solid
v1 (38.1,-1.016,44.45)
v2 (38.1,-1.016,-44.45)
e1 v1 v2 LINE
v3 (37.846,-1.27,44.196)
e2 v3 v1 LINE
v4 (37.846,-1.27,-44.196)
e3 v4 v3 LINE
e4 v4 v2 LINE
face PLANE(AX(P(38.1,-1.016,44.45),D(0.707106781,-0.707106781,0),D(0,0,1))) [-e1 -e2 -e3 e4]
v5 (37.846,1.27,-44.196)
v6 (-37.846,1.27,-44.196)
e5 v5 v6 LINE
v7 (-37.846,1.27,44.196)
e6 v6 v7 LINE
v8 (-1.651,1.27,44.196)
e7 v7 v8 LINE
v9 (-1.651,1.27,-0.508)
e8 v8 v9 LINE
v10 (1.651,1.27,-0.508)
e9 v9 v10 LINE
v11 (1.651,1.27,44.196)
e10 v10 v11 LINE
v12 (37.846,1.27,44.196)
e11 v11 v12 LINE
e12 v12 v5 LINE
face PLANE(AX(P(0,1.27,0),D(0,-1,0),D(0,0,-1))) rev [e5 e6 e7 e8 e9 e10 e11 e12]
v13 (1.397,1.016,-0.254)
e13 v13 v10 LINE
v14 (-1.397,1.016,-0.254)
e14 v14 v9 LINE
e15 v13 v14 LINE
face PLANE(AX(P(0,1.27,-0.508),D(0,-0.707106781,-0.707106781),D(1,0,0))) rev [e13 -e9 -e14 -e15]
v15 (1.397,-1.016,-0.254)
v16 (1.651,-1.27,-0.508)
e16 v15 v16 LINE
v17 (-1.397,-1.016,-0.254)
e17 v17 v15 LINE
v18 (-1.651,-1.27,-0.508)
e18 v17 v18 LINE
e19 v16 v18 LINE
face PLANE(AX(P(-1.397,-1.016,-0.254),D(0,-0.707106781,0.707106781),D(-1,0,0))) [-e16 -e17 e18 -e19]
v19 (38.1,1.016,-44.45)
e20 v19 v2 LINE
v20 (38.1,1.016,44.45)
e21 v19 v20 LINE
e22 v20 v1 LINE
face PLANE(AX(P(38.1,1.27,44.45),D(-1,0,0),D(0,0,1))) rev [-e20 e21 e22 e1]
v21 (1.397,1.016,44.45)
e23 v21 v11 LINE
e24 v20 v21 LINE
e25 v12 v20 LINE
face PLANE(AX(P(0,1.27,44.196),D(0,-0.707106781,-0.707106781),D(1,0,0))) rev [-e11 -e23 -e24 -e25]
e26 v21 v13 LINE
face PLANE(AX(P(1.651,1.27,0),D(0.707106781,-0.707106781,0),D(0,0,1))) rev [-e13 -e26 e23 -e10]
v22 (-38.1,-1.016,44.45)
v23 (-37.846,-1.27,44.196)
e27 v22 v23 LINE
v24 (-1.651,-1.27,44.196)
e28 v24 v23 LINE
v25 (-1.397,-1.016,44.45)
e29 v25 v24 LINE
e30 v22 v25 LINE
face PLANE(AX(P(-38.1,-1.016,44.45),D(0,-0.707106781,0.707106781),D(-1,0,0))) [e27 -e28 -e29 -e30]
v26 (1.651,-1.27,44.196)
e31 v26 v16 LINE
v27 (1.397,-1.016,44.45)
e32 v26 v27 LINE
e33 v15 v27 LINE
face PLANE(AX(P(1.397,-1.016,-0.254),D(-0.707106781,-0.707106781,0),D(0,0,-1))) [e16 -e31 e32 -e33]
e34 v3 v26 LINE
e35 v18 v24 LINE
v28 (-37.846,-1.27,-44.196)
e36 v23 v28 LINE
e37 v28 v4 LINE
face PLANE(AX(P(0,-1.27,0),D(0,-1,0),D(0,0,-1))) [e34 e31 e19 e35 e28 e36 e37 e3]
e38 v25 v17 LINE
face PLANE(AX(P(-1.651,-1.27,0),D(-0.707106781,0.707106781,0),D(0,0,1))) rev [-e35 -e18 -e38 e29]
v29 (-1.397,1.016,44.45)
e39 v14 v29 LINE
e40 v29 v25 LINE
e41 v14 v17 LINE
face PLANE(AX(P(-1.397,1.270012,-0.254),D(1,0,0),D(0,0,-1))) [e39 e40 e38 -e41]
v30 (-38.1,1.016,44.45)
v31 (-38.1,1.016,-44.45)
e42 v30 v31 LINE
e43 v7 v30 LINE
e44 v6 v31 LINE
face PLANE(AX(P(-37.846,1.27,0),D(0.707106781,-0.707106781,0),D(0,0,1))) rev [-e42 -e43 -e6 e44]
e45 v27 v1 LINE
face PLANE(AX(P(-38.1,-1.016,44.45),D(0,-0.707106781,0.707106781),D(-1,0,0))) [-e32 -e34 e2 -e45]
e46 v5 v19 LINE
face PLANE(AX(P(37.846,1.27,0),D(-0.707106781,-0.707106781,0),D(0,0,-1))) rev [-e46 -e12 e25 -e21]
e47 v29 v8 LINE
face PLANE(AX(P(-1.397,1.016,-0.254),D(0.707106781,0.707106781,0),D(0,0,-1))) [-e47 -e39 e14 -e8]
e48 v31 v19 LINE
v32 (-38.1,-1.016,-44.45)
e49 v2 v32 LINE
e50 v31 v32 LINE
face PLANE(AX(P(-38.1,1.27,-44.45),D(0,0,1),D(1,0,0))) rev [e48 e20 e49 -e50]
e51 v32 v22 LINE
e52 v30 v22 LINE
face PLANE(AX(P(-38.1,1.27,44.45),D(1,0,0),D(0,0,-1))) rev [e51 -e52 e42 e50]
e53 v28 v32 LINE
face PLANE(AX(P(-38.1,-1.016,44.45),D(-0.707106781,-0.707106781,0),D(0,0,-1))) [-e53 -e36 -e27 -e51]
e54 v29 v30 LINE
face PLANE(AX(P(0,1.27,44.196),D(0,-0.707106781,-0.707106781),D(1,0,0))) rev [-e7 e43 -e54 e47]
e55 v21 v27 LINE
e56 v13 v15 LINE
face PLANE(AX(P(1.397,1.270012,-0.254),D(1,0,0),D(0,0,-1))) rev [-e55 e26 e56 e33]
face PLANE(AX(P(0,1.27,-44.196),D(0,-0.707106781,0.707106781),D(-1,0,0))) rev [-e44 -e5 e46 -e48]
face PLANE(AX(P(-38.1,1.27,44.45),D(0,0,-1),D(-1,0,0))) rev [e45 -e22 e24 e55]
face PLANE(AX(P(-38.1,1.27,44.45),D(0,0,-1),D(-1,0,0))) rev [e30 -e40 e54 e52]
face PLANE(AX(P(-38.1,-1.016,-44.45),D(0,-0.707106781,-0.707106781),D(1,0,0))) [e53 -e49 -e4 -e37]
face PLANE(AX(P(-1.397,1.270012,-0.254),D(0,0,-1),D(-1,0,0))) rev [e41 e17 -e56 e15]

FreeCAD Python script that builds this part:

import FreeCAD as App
import Part
import Sketcher
from FreeCAD import Vector
Q = App.Units.Quantity


def edges_at(feature, points):
    """Names of the edges that pass closest to the given points."""
    edges = feature.Shape.Edges
    near = lambda p: min(range(len(edges)), key=lambda i: edges[i].distToShape(Part.Vertex(*p))[0])
    return sorted({f"Edge{near(p) + 1}" for p in points})

doc = App.newDocument("Part")
body = doc.addObject("PartDesign::Body", "Body")

# Sketch on XZ plane
sketch1 = doc.addObject("Sketcher::SketchObject", "Sketch")
body.addObject(sketch1)
sketch1.AttachmentSupport = (doc.XZ_Plane, [""])
sketch1.MapMode = "FlatFace"
sketch1.addGeometry([
    Part.LineSegment(Vector(-38.1, -44.45, 0), Vector(-38.1, 44.45, 0)),
    Part.LineSegment(Vector(-38.1, 44.45, 0), Vector(38.1, 44.45, 0)),
    Part.LineSegment(Vector(38.1, 44.45, 0), Vector(38.1, -44.45, 0)),
    Part.LineSegment(Vector(38.1, -44.45, 0), Vector(-38.1, -44.45, 0)),
], False)
sketch1.addConstraint([
    Sketcher.Constraint("Coincident", 0, 2, 1, 1),
    Sketcher.Constraint("Coincident", 1, 2, 2, 1),
    Sketcher.Constraint("Coincident", 2, 2, 3, 1),
    Sketcher.Constraint("Coincident", 3, 2, 0, 1),
    Sketcher.Constraint("Vertical", 0),
    Sketcher.Constraint("Horizontal", 1),
    Sketcher.Constraint("Vertical", 2),
    Sketcher.Constraint("Horizontal", 3),
    Sketcher.Constraint("Symmetric", 0, 2, 2, 2, -1, 1),
    Sketcher.Constraint("DistanceX", 1, 1, 1, 2, Q("3 in")),
    Sketcher.Constraint("DistanceY", 0, 1, 0, 2, Q("3.5 in")),
])
pad1 = doc.addObject("PartDesign::Pad", "Pad")
body.addObject(pad1)
pad1.Profile = sketch1
pad1.Length = Q("0.1 in")
pad1.Midplane = True

# Sketch on XZ plane
sketch2 = doc.addObject("Sketcher::SketchObject", "Sketch001")
body.addObject(sketch2)
sketch2.AttachmentSupport = (doc.XZ_Plane, [""])
sketch2.MapMode = "FlatFace"
sketch2.AttachmentOffset = App.Placement(Vector(0, 0, -0.05 * 25.4), App.Rotation())
sketch2.addGeometry([
    Part.LineSegment(Vector(-1.397, -0.254, 0), Vector(-1.397, 44.45, 0)),
    Part.LineSegment(Vector(-1.397, 44.45, 0), Vector(1.397, 44.45, 0)),
    Part.LineSegment(Vector(1.397, 44.45, 0), Vector(1.397, -0.254, 0)),
    Part.LineSegment(Vector(1.397, -0.254, 0), Vector(-1.397, -0.254, 0)),
], False)
sketch2.addConstraint([
    Sketcher.Constraint("Coincident", 0, 2, 1, 1),
    Sketcher.Constraint("Coincident", 1, 2, 2, 1),
    Sketcher.Constraint("Coincident", 2, 2, 3, 1),
    Sketcher.Constraint("Coincident", 3, 2, 0, 1),
    Sketcher.Constraint("Vertical", 0),
    Sketcher.Constraint("Horizontal", 1),
    Sketcher.Constraint("Vertical", 2),
    Sketcher.Constraint("Horizontal", 3),
    Sketcher.Constraint("DistanceX", 1, 1, 1, 2, Q("0.11 in")),
    Sketcher.Constraint("DistanceY", 0, 1, 0, 2, Q("1.76 in")),
    Sketcher.Constraint("DistanceY", -1, 1, 0, 2, Q("1.75 in")),
    Sketcher.Constraint("DistanceX", 0, 2, -1, 1, Q("0.055 in")),
])
pocket1 = doc.addObject("PartDesign::Pocket", "Pocket")
body.addObject(pocket1)
pocket1.Profile = sketch2
pocket1.Type = "ThroughAll"
pocket1.Midplane = True
doc.recompute()

chamfer = doc.addObject("PartDesign::Chamfer", "Chamfer")
body.addObject(chamfer)
chamfer.Base = (pocket1, edges_at(pocket1, [
    (38.1, 1.27, 0),
    (19.748, -1.27, 44.45),
    (0, -1.27, -0.254),
    (1.397, -1.27, 22.098),
    (-1.397, -1.27, 22.098),
    (0, 1.27, -44.45),
    (19.748, 1.27, 44.45),
    (1.397, 1.27, 22.098),
    (0, 1.27, -0.254),
    (-1.397, 1.27, 22.098),
    (-38.1, 1.27, 0),
    (0, -1.27, -44.45),
    (38.1, -1.27, 0),
    (-19.748, -1.27, 44.45),
    (-38.1, -1.27, 0),
    (-19.748, 1.27, 44.45),
]))
chamfer.Size = Q("0.01 in")

doc.recompute()
